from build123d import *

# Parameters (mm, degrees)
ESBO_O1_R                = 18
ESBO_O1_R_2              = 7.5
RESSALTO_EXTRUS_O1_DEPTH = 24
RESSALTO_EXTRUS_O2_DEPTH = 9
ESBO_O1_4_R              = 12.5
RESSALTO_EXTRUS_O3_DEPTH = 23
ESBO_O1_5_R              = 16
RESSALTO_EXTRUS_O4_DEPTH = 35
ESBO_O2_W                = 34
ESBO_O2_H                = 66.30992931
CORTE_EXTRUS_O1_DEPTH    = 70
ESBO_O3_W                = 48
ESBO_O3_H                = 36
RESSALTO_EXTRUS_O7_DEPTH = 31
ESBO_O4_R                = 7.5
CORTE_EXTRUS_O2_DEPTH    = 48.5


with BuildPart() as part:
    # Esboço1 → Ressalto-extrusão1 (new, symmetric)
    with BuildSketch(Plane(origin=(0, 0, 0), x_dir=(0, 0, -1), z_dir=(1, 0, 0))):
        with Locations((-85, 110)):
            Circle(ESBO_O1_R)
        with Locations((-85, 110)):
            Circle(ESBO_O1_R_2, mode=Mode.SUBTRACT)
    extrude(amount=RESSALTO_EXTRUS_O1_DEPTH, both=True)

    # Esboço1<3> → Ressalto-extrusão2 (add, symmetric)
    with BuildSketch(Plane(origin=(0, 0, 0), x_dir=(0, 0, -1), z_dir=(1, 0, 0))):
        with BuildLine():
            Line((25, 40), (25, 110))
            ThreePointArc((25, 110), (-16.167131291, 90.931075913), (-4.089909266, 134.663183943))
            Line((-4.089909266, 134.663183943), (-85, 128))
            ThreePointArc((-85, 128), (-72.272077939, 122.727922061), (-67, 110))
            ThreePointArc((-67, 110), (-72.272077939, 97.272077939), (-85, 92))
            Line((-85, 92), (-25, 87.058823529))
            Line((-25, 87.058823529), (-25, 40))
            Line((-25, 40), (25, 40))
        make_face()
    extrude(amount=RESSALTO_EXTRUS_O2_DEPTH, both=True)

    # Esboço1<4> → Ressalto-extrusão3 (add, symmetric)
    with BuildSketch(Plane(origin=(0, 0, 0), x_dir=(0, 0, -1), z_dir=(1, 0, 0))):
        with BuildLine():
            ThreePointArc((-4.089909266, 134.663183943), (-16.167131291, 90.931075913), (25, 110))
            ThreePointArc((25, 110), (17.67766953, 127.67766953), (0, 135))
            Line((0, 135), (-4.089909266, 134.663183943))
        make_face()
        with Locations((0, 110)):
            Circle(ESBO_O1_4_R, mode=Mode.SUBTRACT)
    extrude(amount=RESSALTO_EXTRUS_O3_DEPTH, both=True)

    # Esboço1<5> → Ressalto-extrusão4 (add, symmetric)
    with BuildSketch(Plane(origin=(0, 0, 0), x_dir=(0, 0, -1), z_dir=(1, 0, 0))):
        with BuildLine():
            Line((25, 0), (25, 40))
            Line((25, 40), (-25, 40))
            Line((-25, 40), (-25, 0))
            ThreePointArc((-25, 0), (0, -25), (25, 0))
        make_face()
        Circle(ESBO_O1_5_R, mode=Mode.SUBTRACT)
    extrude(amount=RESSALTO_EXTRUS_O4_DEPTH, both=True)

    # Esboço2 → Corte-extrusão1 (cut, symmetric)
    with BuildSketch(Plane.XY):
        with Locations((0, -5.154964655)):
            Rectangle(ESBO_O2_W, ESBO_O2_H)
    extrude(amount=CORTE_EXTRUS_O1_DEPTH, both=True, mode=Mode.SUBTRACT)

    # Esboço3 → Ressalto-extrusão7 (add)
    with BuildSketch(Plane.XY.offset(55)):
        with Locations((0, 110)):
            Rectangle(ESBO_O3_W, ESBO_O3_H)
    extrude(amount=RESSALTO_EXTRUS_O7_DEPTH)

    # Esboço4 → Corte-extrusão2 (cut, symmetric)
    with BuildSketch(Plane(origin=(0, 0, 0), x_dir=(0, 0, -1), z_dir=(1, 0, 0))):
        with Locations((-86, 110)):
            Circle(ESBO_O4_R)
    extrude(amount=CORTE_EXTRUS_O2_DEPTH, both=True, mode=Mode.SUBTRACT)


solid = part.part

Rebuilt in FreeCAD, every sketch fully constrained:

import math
import FreeCAD as App
import Part
import Sketcher

V = App.Vector

doc = App.newDocument("Part")
params = doc.addObject("Spreadsheet::Sheet", "Params")
for row, (alias, value) in enumerate([
    ("sketch1_diameter", "36 mm"),
    ("sketch1_diameter2", "15 mm"),
    ("pad1_length", "48 mm"),
    ("sketch2_radius", "25 mm"),
    ("sketch2_radius2", "18 mm"),
    ("sketch2_width", "70 mm"),
    ("sketch2_height", "50 mm"),
    ("pad2_length", "18 mm"),
    ("sketch3_diameter", "25 mm"),
    ("sketch3_radius", "25 mm"),
    ("pad3_length", "46 mm"),
    ("sketch4_diameter", "32 mm"),
    ("sketch4_radius", "25 mm"),
    ("sketch4_width", "40 mm"),
    ("pad4_length", "70 mm"),
    ("sketch5_width", "34 mm"),
    ("pocket1_length", "140 mm"),
    ("sketch6_width", "48 mm"),
    ("sketch6_height", "36 mm"),
    ("pad5_length", "31 mm"),
    ("sketch7_diameter", "15 mm"),
    ("pocket2_length", "97 mm"),
], start=1):
    params.set(f"A{row}", alias)
    params.set(f"B{row}", "=" + value)
    params.setAlias(f"B{row}", alias)

body = doc.addObject("PartDesign::Body", "Body")

# Sketch on YZ plane
sketch1 = doc.addObject("Sketcher::SketchObject", "Sketch")
body.addObject(sketch1)
sketch1.AttachmentSupport = (doc.YZ_Plane, [""])
sketch1.MapMode = "FlatFace"
sketch1.addGeometry(Part.Circle(V(110, 85, 0), V(0, 0, 1), 18), False)
sketch1.addGeometry(Part.Circle(V(110, 85, 0), V(0, 0, 1), 8), False)
sketch1.addConstraint(Sketcher.Constraint("Coincident", 1, 3, 0, 3))
sketch1.addConstraint(Sketcher.Constraint("Diameter", 0, 36.0))
sketch1.addConstraint(Sketcher.Constraint("Diameter", 1, 15.0))
sketch1.addConstraint(Sketcher.Constraint("DistanceX", -1, 1, 0, 3, 110.0))
sketch1.addConstraint(Sketcher.Constraint("DistanceY", -1, 1, 0, 3, 85.0))
sketch1.setExpression("Constraints[1]", "Params.sketch1_diameter")
sketch1.setExpression("Constraints[2]", "Params.sketch1_diameter2")
pad1 = doc.addObject("PartDesign::Pad", "Pad")
body.addObject(pad1)
pad1.Profile = sketch1
pad1.setExpression("Length", "Params.pad1_length")
pad1.Midplane = True

# Sketch on YZ plane
sketch2 = doc.addObject("Sketcher::SketchObject", "Sketch001")
body.addObject(sketch2)
sketch2.AttachmentSupport = (doc.YZ_Plane, [""])
sketch2.MapMode = "FlatFace"
sketch2.addGeometry(Part.LineSegment(V(40, -25, 0), V(110, -25, 0)), False)
sketch2.addGeometry(Part.ArcOfCircle(Part.Circle(V(110, 0, 0), V(0, 0, 1), 25), math.radians(9), math.radians(270)), False)
sketch2.addGeometry(Part.LineSegment(V(135, 4, 0), V(128, 85, 0)), False)
sketch2.addGeometry(Part.ArcOfCircle(Part.Circle(V(110, 85, 0), V(0, 0, 1), 18), math.radians(-90), math.radians(0)), False)
sketch2.addGeometry(Part.ArcOfCircle(Part.Circle(V(110, 85, 0), V(0, 0, 1), 18), math.radians(-180), math.radians(-90)), False)
sketch2.addGeometry(Part.LineSegment(V(92, 85, 0), V(87, 25, 0)), False)
sketch2.addGeometry(Part.LineSegment(V(87, 25, 0), V(40, 25, 0)), False)
sketch2.addGeometry(Part.LineSegment(V(40, 25, 0), V(40, -25, 0)), False)
sketch2.addConstraint(Sketcher.Constraint("Tangent", 0, 2, 1, 2))
sketch2.addConstraint(Sketcher.Constraint("Coincident", 1, 1, 2, 1))
sketch2.addConstraint(Sketcher.Constraint("Coincident", 2, 2, 3, 2))
sketch2.addConstraint(Sketcher.Constraint("Tangent", 3, 1, 4, 2))
sketch2.addConstraint(Sketcher.Constraint("Coincident", 4, 1, 5, 1))
sketch2.addConstraint(Sketcher.Constraint("Coincident", 5, 2, 6, 1))
sketch2.addConstraint(Sketcher.Constraint("Coincident", 6, 2, 7, 1))
sketch2.addConstraint(Sketcher.Constraint("Coincident", 7, 2, 0, 1))
sketch2.addConstraint(Sketcher.Constraint("Horizontal", 0))
sketch2.addConstraint(Sketcher.Constraint("Horizontal", 6))
sketch2.addConstraint(Sketcher.Constraint("Vertical", 7))
sketch2.addConstraint(Sketcher.Constraint("Equal", 3, 4))
sketch2.addConstraint(Sketcher.Constraint("PointOnObject", 1, 3, -1))
sketch2.addConstraint(Sketcher.Constraint("Horizontal", 4, 3, 2, 2))
sketch2.addConstraint(Sketcher.Constraint("Horizontal", 2, 2, 4, 1))
sketch2.addConstraint(Sketcher.Constraint("Vertical", 1, 3, 3, 3))
sketch2.addConstraint(Sketcher.Constraint("Vertical", 0, 2, 3, 1))
sketch2.addConstraint(Sketcher.Constraint("Radius", 1, 25.0))
sketch2.addConstraint(Sketcher.Constraint("Radius", 3, 18.0))
sketch2.addConstraint(Sketcher.Constraint("DistanceX", 0, 1, 0, 2, 70.0))
sketch2.addConstraint(Sketcher.Constraint("DistanceY", 7, 2, 7, 1, 50.0))
sketch2.addConstraint(Sketcher.Constraint("DistanceX", -1, 1, 1, 3, 110.0))
sketch2.addConstraint(Sketcher.Constraint("DistanceY", -1, 1, 3, 3, 85.0))
sketch2.addConstraint(Sketcher.Constraint("DistanceX", 6, 2, 6, 1, 47.058824))
sketch2.addConstraint(Sketcher.Constraint("DistanceY", -1, 1, 1, 1, 4.089909))
sketch2.setExpression("Constraints[17]", "Params.sketch2_radius")
sketch2.setExpression("Constraints[18]", "Params.sketch2_radius2")
sketch2.setExpression("Constraints[19]", "Params.sketch2_width")
sketch2.setExpression("Constraints[20]", "Params.sketch2_height")
pad2 = doc.addObject("PartDesign::Pad", "Pad001")
body.addObject(pad2)
pad2.Profile = sketch2
pad2.setExpression("Length", "Params.pad2_length")
pad2.Midplane = True

# Sketch on YZ plane
sketch3 = doc.addObject("Sketcher::SketchObject", "Sketch002")
body.addObject(sketch3)
sketch3.AttachmentSupport = (doc.YZ_Plane, [""])
sketch3.MapMode = "FlatFace"
sketch3.addGeometry(Part.ArcOfCircle(Part.Circle(V(110, 0, 0), V(0, 0, 1), 25), math.radians(9), math.radians(270)), False)
sketch3.addGeometry(Part.ArcOfCircle(Part.Circle(V(110, 0, 0), V(0, 0, 1), 25), math.radians(-90), math.radians(0)), False)
sketch3.addGeometry(Part.LineSegment(V(135, 0, 0), V(134.7, 4.1, 0)), False)
sketch3.addGeometry(Part.Circle(V(110, 0, 0), V(0, 0, 1), 12.5), False)
sketch3.addConstraint(Sketcher.Constraint("Tangent", 0, 2, 1, 1))
sketch3.addConstraint(Sketcher.Constraint("Coincident", 1, 2, 2, 1))
sketch3.addConstraint(Sketcher.Constraint("Coincident", 2, 2, 0, 1))
sketch3.addConstraint(Sketcher.Constraint("Coincident", 3, 3, 0, 3))
sketch3.addConstraint(Sketcher.Constraint("Equal", 0, 1))
sketch3.addConstraint(Sketcher.Constraint("PointOnObject", 0, 3, -1))
sketch3.addConstraint(Sketcher.Constraint("PointOnObject", 1, 2, -1))
sketch3.addConstraint(Sketcher.Constraint("Vertical", 3, 3, 0, 2))
sketch3.addConstraint(Sketcher.Constraint("Diameter", 3, 25.0))
sketch3.addConstraint(Sketcher.Constraint("Radius", 0, 25.0))
sketch3.addConstraint(Sketcher.Constraint("DistanceX", -1, 1, 0, 3, 110.0))
sketch3.addConstraint(Sketcher.Constraint("DistanceY", -1, 1, 2, 2, 4.089909))
sketch3.setExpression("Constraints[8]", "Params.sketch3_diameter")
sketch3.setExpression("Constraints[9]", "Params.sketch3_radius")
pad3 = doc.addObject("PartDesign::Pad", "Pad002")
body.addObject(pad3)
pad3.Profile = sketch3
pad3.setExpression("Length", "Params.pad3_length")
pad3.Midplane = True

# Sketch on YZ plane
sketch4 = doc.addObject("Sketcher::SketchObject", "Sketch003")
body.addObject(sketch4)
sketch4.AttachmentSupport = (doc.YZ_Plane, [""])
sketch4.MapMode = "FlatFace"
sketch4.addGeometry(Part.LineSegment(V(0, -25, 0), V(40, -25, 0)), False)
sketch4.addGeometry(Part.LineSegment(V(40, -25, 0), V(40, 25, 0)), False)
sketch4.addGeometry(Part.LineSegment(V(40, 25, 0), V(0, 25, 0)), False)
sketch4.addGeometry(Part.ArcOfCircle(Part.Circle(V(0, 0, 0), V(0, 0, 1), 25), math.radians(90), math.radians(270)), False)
sketch4.addGeometry(Part.Circle(V(0, 0, 0), V(0, 0, 1), 16), False)
sketch4.addConstraint(Sketcher.Constraint("Coincident", 0, 2, 1, 1))
sketch4.addConstraint(Sketcher.Constraint("Coincident", 1, 2, 2, 1))
sketch4.addConstraint(Sketcher.Constraint("Tangent", 2, 2, 3, 1))
sketch4.addConstraint(Sketcher.Constraint("Tangent", 3, 2, 0, 1))
sketch4.addConstraint(Sketcher.Constraint("Horizontal", 0))
sketch4.addConstraint(Sketcher.Constraint("Vertical", 1))
sketch4.addConstraint(Sketcher.Constraint("Horizontal", 2))
sketch4.addConstraint(Sketcher.Constraint("Coincident", 3, 3, -1, 1))
sketch4.addConstraint(Sketcher.Constraint("Coincident", 4, 3, -1, 1))
sketch4.addConstraint(Sketcher.Constraint("Diameter", 4, 32.0))
sketch4.addConstraint(Sketcher.Constraint("Radius", 3, 25.0))
sketch4.addConstraint(Sketcher.Constraint("DistanceX", 0, 1, 0, 2, 40.0))
sketch4.setExpression("Constraints[9]", "Params.sketch4_diameter")
sketch4.setExpression("Constraints[10]", "Params.sketch4_radius")
sketch4.setExpression("Constraints[11]", "Params.sketch4_width")
pad4 = doc.addObject("PartDesign::Pad", "Pad003")
body.addObject(pad4)
pad4.Profile = sketch4
pad4.setExpression("Length", "Params.pad4_length")
pad4.Midplane = True

# Sketch on XY plane
sketch5 = doc.addObject("Sketcher::SketchObject", "Sketch004")
body.addObject(sketch5)
sketch5.AttachmentSupport = (doc.XY_Plane, [""])
sketch5.MapMode = "FlatFace"
sketch5.addGeometry(Part.LineSegment(V(-17, 28, 0), V(-17, -38, 0)), False)
sketch5.addGeometry(Part.LineSegment(V(-17, -38, 0), V(17, -38, 0)), False)
sketch5.addGeometry(Part.LineSegment(V(17, -38, 0), V(17, 28, 0)), False)
sketch5.addGeometry(Part.LineSegment(V(17, 28, 0), V(-17, 28, 0)), False)
sketch5.addConstraint(Sketcher.Constraint("Coincident", 0, 2, 1, 1))
sketch5.addConstraint(Sketcher.Constraint("Coincident", 1, 2, 2, 1))
sketch5.addConstraint(Sketcher.Constraint("Coincident", 2, 2, 3, 1))
sketch5.addConstraint(Sketcher.Constraint("Coincident", 3, 2, 0, 1))
sketch5.addConstraint(Sketcher.Constraint("Vertical", 0))
sketch5.addConstraint(Sketcher.Constraint("Horizontal", 1))
sketch5.addConstraint(Sketcher.Constraint("Vertical", 2))
sketch5.addConstraint(Sketcher.Constraint("Horizontal", 3))
sketch5.addConstraint(Sketcher.Constraint("DistanceX", 1, 1, 1, 2, 34.0))
sketch5.addConstraint(Sketcher.Constraint("DistanceX", 0, 2, -1, 1, 17.0))
sketch5.addConstraint(Sketcher.Constraint("DistanceY", -1, 1, 2, 2, 28.0))
sketch5.addConstraint(Sketcher.Constraint("DistanceY", 0, 2, 0, 1, 66.309929))
sketch5.setExpression("Constraints[8]", "Params.sketch5_width")
pocket1 = doc.addObject("PartDesign::Pocket", "Pocket")
body.addObject(pocket1)
pocket1.Profile = sketch5
pocket1.setExpression("Length", "Params.pocket1_length")
pocket1.Midplane = True

# Sketch on XY plane
sketch6 = doc.addObject("Sketcher::SketchObject", "Sketch005")
body.addObject(sketch6)
sketch6.AttachmentSupport = (doc.XY_Plane, [""])
sketch6.MapMode = "FlatFace"
sketch6.AttachmentOffset = App.Placement(V(0, 0, 55), App.Rotation())
sketch6.addGeometry(Part.LineSegment(V(-24, 128, 0), V(-24, 92, 0)), False)
sketch6.addGeometry(Part.LineSegment(V(-24, 92, 0), V(24, 92, 0)), False)
sketch6.addGeometry(Part.LineSegment(V(24, 92, 0), V(24, 128, 0)), False)
sketch6.addGeometry(Part.LineSegment(V(24, 128, 0), V(-24, 128, 0)), False)
sketch6.addConstraint(Sketcher.Constraint("Coincident", 0, 2, 1, 1))
sketch6.addConstraint(Sketcher.Constraint("Coincident", 1, 2, 2, 1))
sketch6.addConstraint(Sketcher.Constraint("Coincident", 2, 2, 3, 1))
sketch6.addConstraint(Sketcher.Constraint("Coincident", 3, 2, 0, 1))
sketch6.addConstraint(Sketcher.Constraint("Vertical", 0))
sketch6.addConstraint(Sketcher.Constraint("Horizontal", 1))
sketch6.addConstraint(Sketcher.Constraint("Vertical", 2))
sketch6.addConstraint(Sketcher.Constraint("Horizontal", 3))
sketch6.addConstraint(Sketcher.Constraint("DistanceX", 1, 1, 1, 2, 48.0))
sketch6.addConstraint(Sketcher.Constraint("DistanceY", 0, 2, 0, 1, 36.0))
sketch6.addConstraint(Sketcher.Constraint("DistanceX", 0, 2, -1, 1, 24.0))
sketch6.addConstraint(Sketcher.Constraint("DistanceY", -1, 1, 0, 2, 92.0))
sketch6.setExpression("Constraints[8]", "Params.sketch6_width")
sketch6.setExpression("Constraints[9]", "Params.sketch6_height")
pad5 = doc.addObject("PartDesign::Pad", "Pad004")
body.addObject(pad5)
pad5.Profile = sketch6
pad5.setExpression("Length", "Params.pad5_length")

# Sketch on YZ plane
sketch7 = doc.addObject("Sketcher::SketchObject", "Sketch006")
body.addObject(sketch7)
sketch7.AttachmentSupport = (doc.YZ_Plane, [""])
sketch7.MapMode = "FlatFace"
sketch7.addGeometry(Part.Circle(V(110, 86, 0), V(0, 0, 1), 8), False)
sketch7.addConstraint(Sketcher.Constraint("Diameter", 0, 15.0))
sketch7.addConstraint(Sketcher.Constraint("DistanceX", -1, 1, 0, 3, 110.0))
sketch7.addConstraint(Sketcher.Constraint("DistanceY", -1, 1, 0, 3, 86.0))
sketch7.setExpression("Constraints[0]", "Params.sketch7_diameter")
pocket2 = doc.addObject("PartDesign::Pocket", "Pocket001")
body.addObject(pocket2)
pocket2.Profile = sketch7
pocket2.setExpression("Length", "Params.pocket2_length")
pocket2.Midplane = True

doc.recompute()
